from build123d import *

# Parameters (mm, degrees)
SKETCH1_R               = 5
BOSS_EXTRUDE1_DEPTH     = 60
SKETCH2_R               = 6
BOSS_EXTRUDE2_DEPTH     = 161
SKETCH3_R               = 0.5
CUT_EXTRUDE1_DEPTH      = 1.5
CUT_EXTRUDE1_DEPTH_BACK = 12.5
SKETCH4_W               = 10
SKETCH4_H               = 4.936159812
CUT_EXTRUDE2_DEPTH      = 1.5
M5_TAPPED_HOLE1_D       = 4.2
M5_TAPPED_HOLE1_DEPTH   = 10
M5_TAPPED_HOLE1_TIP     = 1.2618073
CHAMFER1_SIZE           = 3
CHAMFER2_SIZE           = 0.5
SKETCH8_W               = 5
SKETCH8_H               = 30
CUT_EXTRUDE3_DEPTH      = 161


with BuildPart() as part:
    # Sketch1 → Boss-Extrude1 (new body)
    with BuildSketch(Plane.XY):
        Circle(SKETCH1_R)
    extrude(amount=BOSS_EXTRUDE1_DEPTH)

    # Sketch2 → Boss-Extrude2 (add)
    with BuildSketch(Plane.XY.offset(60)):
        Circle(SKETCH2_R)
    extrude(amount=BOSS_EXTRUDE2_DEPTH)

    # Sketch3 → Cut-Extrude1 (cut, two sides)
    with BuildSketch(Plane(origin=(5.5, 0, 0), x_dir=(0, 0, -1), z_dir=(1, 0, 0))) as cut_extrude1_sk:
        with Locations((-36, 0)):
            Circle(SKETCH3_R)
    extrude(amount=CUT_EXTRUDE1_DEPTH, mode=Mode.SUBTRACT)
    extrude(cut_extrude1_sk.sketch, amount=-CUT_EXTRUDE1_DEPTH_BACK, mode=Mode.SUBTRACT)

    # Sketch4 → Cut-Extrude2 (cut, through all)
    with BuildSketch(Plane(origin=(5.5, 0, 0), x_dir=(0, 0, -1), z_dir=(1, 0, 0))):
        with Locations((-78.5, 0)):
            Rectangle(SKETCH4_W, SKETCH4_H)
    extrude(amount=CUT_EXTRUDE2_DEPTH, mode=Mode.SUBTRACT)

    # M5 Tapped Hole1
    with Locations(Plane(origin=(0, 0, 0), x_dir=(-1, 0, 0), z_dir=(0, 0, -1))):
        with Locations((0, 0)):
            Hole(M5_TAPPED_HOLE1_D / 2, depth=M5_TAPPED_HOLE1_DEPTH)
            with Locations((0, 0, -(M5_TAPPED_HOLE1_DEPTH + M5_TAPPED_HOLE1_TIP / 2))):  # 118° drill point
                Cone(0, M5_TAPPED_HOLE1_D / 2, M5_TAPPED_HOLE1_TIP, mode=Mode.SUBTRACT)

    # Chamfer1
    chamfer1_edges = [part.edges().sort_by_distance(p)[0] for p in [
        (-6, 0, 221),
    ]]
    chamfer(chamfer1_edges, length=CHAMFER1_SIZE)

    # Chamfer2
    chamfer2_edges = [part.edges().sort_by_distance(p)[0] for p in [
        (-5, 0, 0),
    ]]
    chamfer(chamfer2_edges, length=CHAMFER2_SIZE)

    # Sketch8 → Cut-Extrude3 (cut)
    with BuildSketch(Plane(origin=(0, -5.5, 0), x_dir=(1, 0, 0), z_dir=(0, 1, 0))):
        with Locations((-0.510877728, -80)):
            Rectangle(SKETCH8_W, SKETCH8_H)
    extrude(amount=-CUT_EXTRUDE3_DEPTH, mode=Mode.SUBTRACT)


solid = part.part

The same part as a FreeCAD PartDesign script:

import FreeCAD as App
import Part
import Sketcher


def edges_at(feature, points):
    """Names of the edges that pass closest to the given points."""
    edges = feature.Shape.Edges
    near = lambda p: min(range(len(edges)), key=lambda i: edges[i].distToShape(Part.Vertex(*p))[0])
    return sorted({f"Edge{near(p) + 1}" for p in points})


def add_polygon(sketch, points):
    """Adds a closed chain of lines whose ends are joined by coincident constraints."""
    first, n = sketch.GeometryCount, len(points)
    for a, b in zip(points, points[1:] + points[:1]):
        sketch.addGeometry(Part.LineSegment(App.Vector(*a, 0), App.Vector(*b, 0)), False)
    for i in range(n):
        sketch.addConstraint(Sketcher.Constraint("Coincident", first + i, 2, first + (i + 1) % n, 1))

doc = App.newDocument("Part")
body = doc.addObject("PartDesign::Body", "Body")

# Sketch on XY plane
sketch1 = body.newObject("Sketcher::SketchObject", "Sketch")
sketch1.AttachmentSupport = (doc.getObject("XY_Plane"), [""])
sketch1.MapMode = "FlatFace"
sketch1.addGeometry(Part.Circle(App.Vector(0, 0, 0), App.Vector(0, 0, 1), 5), False)
sketch1.addConstraint(Sketcher.Constraint("Coincident", 0, 3, -1, 1))
sketch1.addConstraint(Sketcher.Constraint("Diameter", 0, 10.0))
pad1 = body.newObject("PartDesign::Pad", "Pad")
pad1.Profile = sketch1
pad1.Length = 60

# Sketch on XY plane
sketch2 = body.newObject("Sketcher::SketchObject", "Sketch001")
sketch2.AttachmentSupport = (doc.getObject("XY_Plane"), [""])
sketch2.MapMode = "FlatFace"
sketch2.AttachmentOffset = App.Placement(App.Vector(0, 0, 60), App.Rotation())
sketch2.addGeometry(Part.Circle(App.Vector(0, 0, 0), App.Vector(0, 0, 1), 6), False)
sketch2.addConstraint(Sketcher.Constraint("Coincident", 0, 3, -1, 1))
sketch2.addConstraint(Sketcher.Constraint("Diameter", 0, 12.0))
pad2 = body.newObject("PartDesign::Pad", "Pad001")
pad2.Profile = sketch2
pad2.Length = 161

# Sketch on YZ plane
sketch3 = body.newObject("Sketcher::SketchObject", "Sketch002")
sketch3.AttachmentSupport = (doc.getObject("YZ_Plane"), [""])
sketch3.MapMode = "FlatFace"
sketch3.AttachmentOffset = App.Placement(App.Vector(0, 0, 5.5), App.Rotation())
sketch3.addGeometry(Part.Circle(App.Vector(0, 36, 0), App.Vector(0, 0, 1), 0.5), False)
sketch3.addConstraint(Sketcher.Constraint("PointOnObject", 0, 3, -2))
sketch3.addConstraint(Sketcher.Constraint("Diameter", 0, 1.0))
sketch3.addConstraint(Sketcher.Constraint("DistanceY", -1, 1, 0, 3, 36.0))
pocket1 = body.newObject("PartDesign::Pocket", "Pocket")
pocket1.Profile = sketch3
pocket1.Type = "ThroughAll"
pocket1.Midplane = True

# Sketch on YZ plane
sketch4 = body.newObject("Sketcher::SketchObject", "Sketch003")
sketch4.AttachmentSupport = (doc.getObject("YZ_Plane"), [""])
sketch4.MapMode = "FlatFace"
sketch4.AttachmentOffset = App.Placement(App.Vector(0, 0, 5.5), App.Rotation())
add_polygon(sketch4, [(2.5, 83.5), (-2.5, 83.5), (-2.5, 73.5), (2.5, 73.5)])  # lines 0-3
sketch4.addConstraint(Sketcher.Constraint("Horizontal", 0))
sketch4.addConstraint(Sketcher.Constraint("Vertical", 1))
sketch4.addConstraint(Sketcher.Constraint("Horizontal", 2))
sketch4.addConstraint(Sketcher.Constraint("Vertical", 3))
sketch4.addConstraint(Sketcher.Constraint("DistanceY", 1, 2, 1, 1, 10.0))
sketch4.addConstraint(Sketcher.Constraint("DistanceY", -1, 1, 0, 2, 83.5))
sketch4.addConstraint(Sketcher.Constraint("DistanceX", 0, 2, 0, 1, 4.93616))
sketch4.addConstraint(Sketcher.Constraint("DistanceX", 0, 2, -1, 1, 2.46808))
pocket2 = body.newObject("PartDesign::Pocket", "Pocket001")
pocket2.Profile = sketch4
pocket2.Type = "ThroughAll"
pocket2.Reversed = True

# Sketch on XY plane
sketch5 = body.newObject("Sketcher::SketchObject", "Sketch004")
sketch5.AttachmentSupport = (doc.getObject("XY_Plane"), [""])
sketch5.MapMode = "FlatFace"
sketch5.addGeometry(Part.Circle(App.Vector(0, 0, 0), App.Vector(0, 0, 1), 2.1), False)
sketch5.addConstraint(Sketcher.Constraint("Coincident", 0, 3, -1, 1))
sketch5.addConstraint(Sketcher.Constraint("Diameter", 0, 4.2))
doc.recompute()
hole = body.newObject("PartDesign::Hole", "Hole")
hole.Profile = sketch5
hole.ThreadType = "None"
hole.Diameter = 4.2
hole.DepthType = "Dimension"
hole.Depth = 10
hole.DrillPoint = "Angled"
hole.DrillPointAngle = 118
hole.Reversed = True
doc.recompute()

chamfer = body.newObject("PartDesign::Chamfer", "Chamfer")
chamfer.Base = (hole, edges_at(hole, [(-6, 0, 221)]))
chamfer.Size = 3
doc.recompute()

chamfer2 = body.newObject("PartDesign::Chamfer", "Chamfer001")
chamfer2.Base = (chamfer, edges_at(chamfer, [(-5, 0, 0)]))
chamfer2.Size = 0.5

# Sketch on XZ plane
sketch6 = body.newObject("Sketcher::SketchObject", "Sketch005")
sketch6.AttachmentSupport = (doc.getObject("XZ_Plane"), [""])
sketch6.MapMode = "FlatFace"
sketch6.AttachmentOffset = App.Placement(App.Vector(0, 0, 5.5), App.Rotation())
add_polygon(sketch6, [(-3, 65), (-3, 95), (2, 95), (2, 65)])  # lines 0-3
sketch6.addConstraint(Sketcher.Constraint("Vertical", 0))
sketch6.addConstraint(Sketcher.Constraint("Horizontal", 1))
sketch6.addConstraint(Sketcher.Constraint("Vertical", 2))
sketch6.addConstraint(Sketcher.Constraint("Horizontal", 3))
sketch6.addConstraint(Sketcher.Constraint("DistanceX", 1, 1, 1, 2, 5.0))
sketch6.addConstraint(Sketcher.Constraint("DistanceY", 0, 1, 0, 2, 30.0))
sketch6.addConstraint(Sketcher.Constraint("DistanceY", -1, 1, 0, 2, 95.0))
sketch6.addConstraint(Sketcher.Constraint("DistanceX", 0, 2, -1, 1, 3.010878))
pocket3 = body.newObject("PartDesign::Pocket", "Pocket002")
pocket3.Profile = sketch6
pocket3.Length = 161
pocket3.Reversed = True

doc.recompute()
